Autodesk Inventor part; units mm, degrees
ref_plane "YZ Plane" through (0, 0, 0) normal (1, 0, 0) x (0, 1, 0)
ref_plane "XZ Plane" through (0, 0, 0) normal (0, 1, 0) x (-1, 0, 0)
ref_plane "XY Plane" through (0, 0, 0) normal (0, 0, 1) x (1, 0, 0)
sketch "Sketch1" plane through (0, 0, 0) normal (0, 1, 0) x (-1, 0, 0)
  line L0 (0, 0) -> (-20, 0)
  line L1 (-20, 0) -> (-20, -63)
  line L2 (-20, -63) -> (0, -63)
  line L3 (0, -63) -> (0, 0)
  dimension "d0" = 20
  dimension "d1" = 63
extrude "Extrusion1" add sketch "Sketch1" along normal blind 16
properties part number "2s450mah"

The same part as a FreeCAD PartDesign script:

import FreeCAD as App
import Part
import Sketcher

doc = App.newDocument("Part")
body = doc.addObject("PartDesign::Body", "Body")

# Sketch on XZ plane
sketch1 = doc.addObject("Sketcher::SketchObject", "Sketch")
body.addObject(sketch1)
sketch1.AttachmentSupport = (doc.XZ_Plane, [""])
sketch1.MapMode = "FlatFace"
sketch1.addGeometry([
    Part.LineSegment(App.Vector(0, -63, 0), App.Vector(0, 0, 0)),
    Part.LineSegment(App.Vector(0, 0, 0), App.Vector(20, 0, 0)),
    Part.LineSegment(App.Vector(20, 0, 0), App.Vector(20, -63, 0)),
    Part.LineSegment(App.Vector(20, -63, 0), App.Vector(0, -63, 0)),
], False)
sketch1.addConstraint([
    Sketcher.Constraint("Coincident", 0, 2, 1, 1),
    Sketcher.Constraint("Coincident", 1, 2, 2, 1),
    Sketcher.Constraint("Coincident", 2, 2, 3, 1),
    Sketcher.Constraint("Coincident", 3, 2, 0, 1),
    Sketcher.Constraint("Vertical", 0),
    Sketcher.Constraint("Horizontal", 1),
    Sketcher.Constraint("Vertical", 2),
    Sketcher.Constraint("Horizontal", 3),
    Sketcher.Constraint("Coincident", 0, 2, -1, 1),
    Sketcher.Constraint("DistanceX", 1, 1, 1, 2, 20.0),
    Sketcher.Constraint("DistanceY", 0, 1, 0, 2, 63.0),
])
pad1 = doc.addObject("PartDesign::Pad", "Pad")
body.addObject(pad1)
pad1.Profile = sketch1
pad1.Length = 16
pad1.Reversed = True

doc.recompute()
